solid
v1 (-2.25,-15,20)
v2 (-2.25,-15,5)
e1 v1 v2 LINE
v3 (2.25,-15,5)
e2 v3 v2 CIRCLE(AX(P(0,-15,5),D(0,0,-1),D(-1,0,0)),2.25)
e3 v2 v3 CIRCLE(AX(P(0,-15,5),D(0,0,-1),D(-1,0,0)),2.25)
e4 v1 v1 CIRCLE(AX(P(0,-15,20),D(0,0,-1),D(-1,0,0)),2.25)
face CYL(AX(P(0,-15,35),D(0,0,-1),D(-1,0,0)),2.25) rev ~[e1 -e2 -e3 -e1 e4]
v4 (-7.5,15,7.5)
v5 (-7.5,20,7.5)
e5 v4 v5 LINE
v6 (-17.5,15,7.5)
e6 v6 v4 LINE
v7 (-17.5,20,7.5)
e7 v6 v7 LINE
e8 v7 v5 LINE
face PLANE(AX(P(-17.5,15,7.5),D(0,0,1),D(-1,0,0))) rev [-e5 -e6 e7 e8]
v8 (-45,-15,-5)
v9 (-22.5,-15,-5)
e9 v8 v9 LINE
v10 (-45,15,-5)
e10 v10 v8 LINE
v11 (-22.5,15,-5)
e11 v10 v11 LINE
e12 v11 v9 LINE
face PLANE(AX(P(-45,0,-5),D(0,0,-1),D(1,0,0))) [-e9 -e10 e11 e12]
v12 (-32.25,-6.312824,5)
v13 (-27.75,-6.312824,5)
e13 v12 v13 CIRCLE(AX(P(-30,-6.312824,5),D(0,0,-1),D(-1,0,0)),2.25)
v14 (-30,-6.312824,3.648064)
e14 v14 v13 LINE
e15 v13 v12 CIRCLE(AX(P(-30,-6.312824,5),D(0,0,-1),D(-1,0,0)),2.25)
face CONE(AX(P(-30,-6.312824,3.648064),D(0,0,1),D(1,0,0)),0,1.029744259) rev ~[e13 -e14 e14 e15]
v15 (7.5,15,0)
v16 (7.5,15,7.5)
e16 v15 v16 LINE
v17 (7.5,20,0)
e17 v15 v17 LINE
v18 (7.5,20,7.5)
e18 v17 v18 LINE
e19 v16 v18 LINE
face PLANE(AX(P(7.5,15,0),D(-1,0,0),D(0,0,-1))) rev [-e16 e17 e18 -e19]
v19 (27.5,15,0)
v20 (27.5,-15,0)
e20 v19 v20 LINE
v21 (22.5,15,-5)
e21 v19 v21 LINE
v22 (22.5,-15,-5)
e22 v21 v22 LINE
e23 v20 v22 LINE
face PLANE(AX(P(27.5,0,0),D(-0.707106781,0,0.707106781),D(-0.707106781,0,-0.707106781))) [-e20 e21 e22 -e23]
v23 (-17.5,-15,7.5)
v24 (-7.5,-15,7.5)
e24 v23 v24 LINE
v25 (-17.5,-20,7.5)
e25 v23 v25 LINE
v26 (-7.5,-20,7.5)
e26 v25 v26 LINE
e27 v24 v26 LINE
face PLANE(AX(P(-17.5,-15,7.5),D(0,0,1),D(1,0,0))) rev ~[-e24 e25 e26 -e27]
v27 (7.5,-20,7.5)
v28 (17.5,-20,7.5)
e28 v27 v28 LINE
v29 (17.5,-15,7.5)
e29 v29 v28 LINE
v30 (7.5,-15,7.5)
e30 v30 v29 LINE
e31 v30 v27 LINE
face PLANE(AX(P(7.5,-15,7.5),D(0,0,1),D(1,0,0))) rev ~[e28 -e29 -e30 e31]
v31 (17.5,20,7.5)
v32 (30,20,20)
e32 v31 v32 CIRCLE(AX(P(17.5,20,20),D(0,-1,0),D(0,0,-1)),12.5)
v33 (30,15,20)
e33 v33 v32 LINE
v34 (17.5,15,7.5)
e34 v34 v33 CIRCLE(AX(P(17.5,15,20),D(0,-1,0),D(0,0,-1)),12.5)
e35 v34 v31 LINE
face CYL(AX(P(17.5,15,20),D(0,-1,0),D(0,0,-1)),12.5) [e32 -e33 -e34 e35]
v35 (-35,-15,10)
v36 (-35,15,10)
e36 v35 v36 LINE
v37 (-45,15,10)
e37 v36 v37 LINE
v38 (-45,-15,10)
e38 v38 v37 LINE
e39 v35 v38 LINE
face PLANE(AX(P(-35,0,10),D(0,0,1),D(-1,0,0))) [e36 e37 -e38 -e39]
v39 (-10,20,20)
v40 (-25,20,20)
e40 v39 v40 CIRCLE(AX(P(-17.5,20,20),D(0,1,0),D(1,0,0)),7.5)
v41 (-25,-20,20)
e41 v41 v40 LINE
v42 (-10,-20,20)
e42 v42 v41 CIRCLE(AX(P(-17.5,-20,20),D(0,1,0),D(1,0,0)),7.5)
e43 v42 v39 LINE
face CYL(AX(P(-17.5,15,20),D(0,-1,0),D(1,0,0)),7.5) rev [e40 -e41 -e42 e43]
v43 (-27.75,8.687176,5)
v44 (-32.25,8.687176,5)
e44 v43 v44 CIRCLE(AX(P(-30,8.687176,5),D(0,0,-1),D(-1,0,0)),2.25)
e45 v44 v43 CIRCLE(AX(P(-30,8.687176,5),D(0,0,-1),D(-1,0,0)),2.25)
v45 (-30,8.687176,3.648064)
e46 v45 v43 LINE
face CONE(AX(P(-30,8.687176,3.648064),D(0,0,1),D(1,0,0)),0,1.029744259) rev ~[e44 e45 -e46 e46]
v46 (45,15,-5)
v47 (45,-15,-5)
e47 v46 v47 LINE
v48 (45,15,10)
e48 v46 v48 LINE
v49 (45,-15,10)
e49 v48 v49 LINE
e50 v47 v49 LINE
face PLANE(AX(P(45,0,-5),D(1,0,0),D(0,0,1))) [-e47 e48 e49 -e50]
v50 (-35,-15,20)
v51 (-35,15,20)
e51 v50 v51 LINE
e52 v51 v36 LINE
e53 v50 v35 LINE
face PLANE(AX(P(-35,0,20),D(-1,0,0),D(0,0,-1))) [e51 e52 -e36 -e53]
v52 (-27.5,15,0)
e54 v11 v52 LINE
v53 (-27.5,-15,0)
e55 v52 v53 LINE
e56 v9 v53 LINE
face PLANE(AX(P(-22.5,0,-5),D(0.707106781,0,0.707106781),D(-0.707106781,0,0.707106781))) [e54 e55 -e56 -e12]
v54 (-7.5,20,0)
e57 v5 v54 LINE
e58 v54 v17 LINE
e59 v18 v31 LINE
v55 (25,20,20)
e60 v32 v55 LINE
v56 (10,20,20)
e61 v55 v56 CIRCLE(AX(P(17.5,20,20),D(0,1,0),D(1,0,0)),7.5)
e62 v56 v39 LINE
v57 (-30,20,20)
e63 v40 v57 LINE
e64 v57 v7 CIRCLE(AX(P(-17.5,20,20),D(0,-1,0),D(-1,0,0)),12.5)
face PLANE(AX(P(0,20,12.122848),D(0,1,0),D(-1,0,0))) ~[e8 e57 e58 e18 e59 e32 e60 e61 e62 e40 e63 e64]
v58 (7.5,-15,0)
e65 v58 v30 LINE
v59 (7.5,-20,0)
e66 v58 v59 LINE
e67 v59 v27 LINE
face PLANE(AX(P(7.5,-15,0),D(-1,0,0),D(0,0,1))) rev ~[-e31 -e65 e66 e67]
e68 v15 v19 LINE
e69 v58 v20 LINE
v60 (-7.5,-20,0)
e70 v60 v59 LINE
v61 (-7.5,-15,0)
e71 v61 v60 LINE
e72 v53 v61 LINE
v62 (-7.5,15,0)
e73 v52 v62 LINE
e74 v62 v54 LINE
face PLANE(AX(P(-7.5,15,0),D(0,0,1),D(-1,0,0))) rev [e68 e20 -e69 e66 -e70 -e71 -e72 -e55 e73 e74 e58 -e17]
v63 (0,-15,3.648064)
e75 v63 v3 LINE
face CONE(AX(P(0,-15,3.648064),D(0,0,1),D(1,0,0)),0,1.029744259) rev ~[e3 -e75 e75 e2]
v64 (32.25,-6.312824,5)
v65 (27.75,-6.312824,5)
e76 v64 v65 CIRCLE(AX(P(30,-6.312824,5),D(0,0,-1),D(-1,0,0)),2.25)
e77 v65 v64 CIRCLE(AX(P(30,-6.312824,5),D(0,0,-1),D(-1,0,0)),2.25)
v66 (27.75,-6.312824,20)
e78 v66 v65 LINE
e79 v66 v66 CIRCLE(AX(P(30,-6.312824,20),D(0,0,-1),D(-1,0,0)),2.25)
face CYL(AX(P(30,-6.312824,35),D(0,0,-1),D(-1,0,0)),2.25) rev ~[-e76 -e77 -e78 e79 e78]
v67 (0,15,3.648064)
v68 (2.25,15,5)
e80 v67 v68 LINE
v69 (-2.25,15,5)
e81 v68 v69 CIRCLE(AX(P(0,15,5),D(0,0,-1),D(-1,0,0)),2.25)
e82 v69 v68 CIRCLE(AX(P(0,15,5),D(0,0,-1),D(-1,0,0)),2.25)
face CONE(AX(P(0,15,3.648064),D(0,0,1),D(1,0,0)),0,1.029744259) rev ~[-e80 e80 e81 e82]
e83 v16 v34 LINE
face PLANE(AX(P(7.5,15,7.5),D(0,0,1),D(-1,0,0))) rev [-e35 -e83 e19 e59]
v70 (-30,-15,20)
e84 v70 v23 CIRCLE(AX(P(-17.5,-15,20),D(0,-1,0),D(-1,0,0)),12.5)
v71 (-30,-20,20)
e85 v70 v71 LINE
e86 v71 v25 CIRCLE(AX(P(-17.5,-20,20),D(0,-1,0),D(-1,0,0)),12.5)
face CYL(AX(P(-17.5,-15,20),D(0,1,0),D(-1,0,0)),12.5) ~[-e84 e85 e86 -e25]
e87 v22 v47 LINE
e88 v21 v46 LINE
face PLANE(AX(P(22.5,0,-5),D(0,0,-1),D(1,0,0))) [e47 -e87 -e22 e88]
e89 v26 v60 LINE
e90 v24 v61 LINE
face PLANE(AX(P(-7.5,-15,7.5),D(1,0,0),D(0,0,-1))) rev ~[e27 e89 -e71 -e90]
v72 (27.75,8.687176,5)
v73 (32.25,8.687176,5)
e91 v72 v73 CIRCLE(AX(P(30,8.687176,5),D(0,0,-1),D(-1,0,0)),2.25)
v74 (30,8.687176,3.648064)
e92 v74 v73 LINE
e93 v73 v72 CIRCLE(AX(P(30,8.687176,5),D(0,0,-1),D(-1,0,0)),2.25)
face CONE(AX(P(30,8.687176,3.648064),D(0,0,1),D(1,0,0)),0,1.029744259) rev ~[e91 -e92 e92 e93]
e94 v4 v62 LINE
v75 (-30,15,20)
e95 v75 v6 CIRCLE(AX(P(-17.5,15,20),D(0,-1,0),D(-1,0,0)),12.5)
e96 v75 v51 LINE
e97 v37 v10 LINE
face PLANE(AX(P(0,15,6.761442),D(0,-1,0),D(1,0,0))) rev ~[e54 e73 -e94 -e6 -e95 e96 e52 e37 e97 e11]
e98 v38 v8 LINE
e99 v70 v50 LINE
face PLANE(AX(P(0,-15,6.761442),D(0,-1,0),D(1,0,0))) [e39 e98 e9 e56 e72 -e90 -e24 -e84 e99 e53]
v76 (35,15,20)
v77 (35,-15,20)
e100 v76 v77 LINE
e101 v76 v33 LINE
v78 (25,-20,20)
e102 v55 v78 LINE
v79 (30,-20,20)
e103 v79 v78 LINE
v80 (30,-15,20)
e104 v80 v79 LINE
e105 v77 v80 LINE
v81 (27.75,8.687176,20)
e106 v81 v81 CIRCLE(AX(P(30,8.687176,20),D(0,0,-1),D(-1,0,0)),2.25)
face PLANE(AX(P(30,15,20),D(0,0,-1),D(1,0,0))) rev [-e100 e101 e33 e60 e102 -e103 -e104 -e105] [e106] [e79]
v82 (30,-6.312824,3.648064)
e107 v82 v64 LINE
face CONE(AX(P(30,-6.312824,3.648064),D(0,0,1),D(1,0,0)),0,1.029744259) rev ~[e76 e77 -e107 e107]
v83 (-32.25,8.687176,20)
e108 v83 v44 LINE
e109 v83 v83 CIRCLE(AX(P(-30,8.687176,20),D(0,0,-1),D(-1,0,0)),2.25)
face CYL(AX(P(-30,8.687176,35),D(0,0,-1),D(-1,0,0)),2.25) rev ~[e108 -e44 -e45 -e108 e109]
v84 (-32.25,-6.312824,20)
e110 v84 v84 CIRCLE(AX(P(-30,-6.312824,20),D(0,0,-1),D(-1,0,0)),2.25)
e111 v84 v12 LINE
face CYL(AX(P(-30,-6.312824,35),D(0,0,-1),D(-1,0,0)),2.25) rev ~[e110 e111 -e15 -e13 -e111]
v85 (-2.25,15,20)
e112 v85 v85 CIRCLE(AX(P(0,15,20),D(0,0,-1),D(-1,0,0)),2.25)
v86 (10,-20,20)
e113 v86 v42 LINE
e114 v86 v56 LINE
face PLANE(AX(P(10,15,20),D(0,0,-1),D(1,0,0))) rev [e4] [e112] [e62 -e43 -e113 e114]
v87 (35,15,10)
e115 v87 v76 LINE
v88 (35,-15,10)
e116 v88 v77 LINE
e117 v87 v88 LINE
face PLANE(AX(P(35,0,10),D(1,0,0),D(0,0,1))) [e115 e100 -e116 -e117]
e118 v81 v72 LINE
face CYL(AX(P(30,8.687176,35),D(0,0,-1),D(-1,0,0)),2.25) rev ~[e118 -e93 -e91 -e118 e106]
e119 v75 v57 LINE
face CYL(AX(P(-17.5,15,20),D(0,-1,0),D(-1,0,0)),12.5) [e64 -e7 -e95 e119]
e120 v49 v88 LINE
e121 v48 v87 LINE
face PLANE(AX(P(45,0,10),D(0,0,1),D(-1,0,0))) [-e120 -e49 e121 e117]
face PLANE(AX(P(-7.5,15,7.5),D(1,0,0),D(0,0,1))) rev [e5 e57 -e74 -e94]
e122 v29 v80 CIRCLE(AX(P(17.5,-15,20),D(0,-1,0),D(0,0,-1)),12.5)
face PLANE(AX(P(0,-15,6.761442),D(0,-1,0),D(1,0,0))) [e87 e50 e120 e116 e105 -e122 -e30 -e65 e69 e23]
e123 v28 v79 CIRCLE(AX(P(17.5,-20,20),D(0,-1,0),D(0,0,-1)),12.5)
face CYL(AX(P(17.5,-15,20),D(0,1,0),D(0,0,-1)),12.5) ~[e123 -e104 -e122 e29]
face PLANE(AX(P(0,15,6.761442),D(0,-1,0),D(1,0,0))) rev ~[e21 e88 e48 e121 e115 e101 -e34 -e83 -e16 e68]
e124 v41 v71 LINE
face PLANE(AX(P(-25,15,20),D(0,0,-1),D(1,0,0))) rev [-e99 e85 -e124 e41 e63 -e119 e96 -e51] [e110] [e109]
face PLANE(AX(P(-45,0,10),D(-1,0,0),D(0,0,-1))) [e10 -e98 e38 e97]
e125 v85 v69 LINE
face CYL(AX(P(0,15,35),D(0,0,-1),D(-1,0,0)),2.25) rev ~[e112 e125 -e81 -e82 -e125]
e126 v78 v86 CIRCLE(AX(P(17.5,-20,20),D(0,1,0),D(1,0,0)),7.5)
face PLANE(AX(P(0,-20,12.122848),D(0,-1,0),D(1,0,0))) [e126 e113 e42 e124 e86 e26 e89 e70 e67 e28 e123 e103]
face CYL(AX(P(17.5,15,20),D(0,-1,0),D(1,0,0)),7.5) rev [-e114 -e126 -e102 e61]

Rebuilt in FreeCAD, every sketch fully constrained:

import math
import FreeCAD as App
import Part
import Sketcher

doc = App.newDocument("Part")
body = doc.addObject("PartDesign::Body", "Body")

# Sketch on XZ plane
sketch1 = body.newObject("Sketcher::SketchObject", "Sketch")
sketch1.AttachmentSupport = (doc.getObject("XZ_Plane"), [""])
sketch1.MapMode = "FlatFace"
sketch1.addGeometry(Part.LineSegment(App.Vector(-45, 10, 0), App.Vector(-45, -5, 0)), False)
sketch1.addGeometry(Part.LineSegment(App.Vector(-45, -5, 0), App.Vector(-22, -5, 0)), False)
sketch1.addGeometry(Part.LineSegment(App.Vector(-22, -5, 0), App.Vector(-28, 0, 0)), False)
sketch1.addGeometry(Part.LineSegment(App.Vector(-28, 0, 0), App.Vector(28, 0, 0)), False)
sketch1.addGeometry(Part.LineSegment(App.Vector(28, 0, 0), App.Vector(22, -5, 0)), False)
sketch1.addGeometry(Part.LineSegment(App.Vector(22, -5, 0), App.Vector(45, -5, 0)), False)
sketch1.addGeometry(Part.LineSegment(App.Vector(45, -5, 0), App.Vector(45, 10, 0)), False)
sketch1.addGeometry(Part.LineSegment(App.Vector(45, 10, 0), App.Vector(35, 10, 0)), False)
sketch1.addGeometry(Part.LineSegment(App.Vector(35, 10, 0), App.Vector(35, 20, 0)), False)
sketch1.addGeometry(Part.LineSegment(App.Vector(35, 20, 0), App.Vector(25, 20, 0)), False)
sketch1.addGeometry(Part.ArcOfCircle(Part.Circle(App.Vector(18, 20, 0), App.Vector(0, 0, 1), 8), math.radians(180), math.radians(360)), False)
sketch1.addGeometry(Part.LineSegment(App.Vector(10, 20, 0), App.Vector(-10, 20, 0)), False)
sketch1.addGeometry(Part.ArcOfCircle(Part.Circle(App.Vector(-18, 20, 0), App.Vector(0, 0, 1), 8), math.radians(180), math.radians(360)), False)
sketch1.addGeometry(Part.LineSegment(App.Vector(-25, 20, 0), App.Vector(-35, 20, 0)), False)
sketch1.addGeometry(Part.LineSegment(App.Vector(-35, 20, 0), App.Vector(-35, 10, 0)), False)
sketch1.addGeometry(Part.LineSegment(App.Vector(-35, 10, 0), App.Vector(-45, 10, 0)), False)
sketch1.addConstraint(Sketcher.Constraint("Coincident", 0, 2, 1, 1))
sketch1.addConstraint(Sketcher.Constraint("Coincident", 1, 2, 2, 1))
sketch1.addConstraint(Sketcher.Constraint("Coincident", 2, 2, 3, 1))
sketch1.addConstraint(Sketcher.Constraint("Coincident", 3, 2, 4, 1))
sketch1.addConstraint(Sketcher.Constraint("Coincident", 4, 2, 5, 1))
sketch1.addConstraint(Sketcher.Constraint("Coincident", 5, 2, 6, 1))
sketch1.addConstraint(Sketcher.Constraint("Coincident", 6, 2, 7, 1))
sketch1.addConstraint(Sketcher.Constraint("Coincident", 7, 2, 8, 1))
sketch1.addConstraint(Sketcher.Constraint("Coincident", 8, 2, 9, 1))
sketch1.addConstraint(Sketcher.Constraint("Coincident", 9, 2, 10, 2))
sketch1.addConstraint(Sketcher.Constraint("Coincident", 10, 1, 11, 1))
sketch1.addConstraint(Sketcher.Constraint("Coincident", 11, 2, 12, 2))
sketch1.addConstraint(Sketcher.Constraint("Coincident", 12, 1, 13, 1))
sketch1.addConstraint(Sketcher.Constraint("Coincident", 13, 2, 14, 1))
sketch1.addConstraint(Sketcher.Constraint("Coincident", 14, 2, 15, 1))
sketch1.addConstraint(Sketcher.Constraint("Coincident", 15, 2, 0, 1))
sketch1.addConstraint(Sketcher.Constraint("Vertical", 0))
sketch1.addConstraint(Sketcher.Constraint("Horizontal", 1))
sketch1.addConstraint(Sketcher.Constraint("Horizontal", 3))
sketch1.addConstraint(Sketcher.Constraint("Horizontal", 5))
sketch1.addConstraint(Sketcher.Constraint("Vertical", 6))
sketch1.addConstraint(Sketcher.Constraint("Horizontal", 7))
sketch1.addConstraint(Sketcher.Constraint("Vertical", 8))
sketch1.addConstraint(Sketcher.Constraint("Horizontal", 9))
sketch1.addConstraint(Sketcher.Constraint("Horizontal", 11))
sketch1.addConstraint(Sketcher.Constraint("Horizontal", 13))
sketch1.addConstraint(Sketcher.Constraint("Vertical", 14))
sketch1.addConstraint(Sketcher.Constraint("Horizontal", 15))
sketch1.addConstraint(Sketcher.Constraint("Equal", 10, 12))
sketch1.addConstraint(Sketcher.Constraint("Symmetric", 2, 2, 3, 2, -1, 1))
sketch1.addConstraint(Sketcher.Constraint("Symmetric", 10, 3, 12, 3, -2))
sketch1.addConstraint(Sketcher.Constraint("Symmetric", 1, 2, 4, 2, -2))
sketch1.addConstraint(Sketcher.Constraint("Symmetric", 8, 2, 13, 2, -2))
sketch1.addConstraint(Sketcher.Constraint("Symmetric", 6, 2, 15, 2, -2))
sketch1.addConstraint(Sketcher.Constraint("Perpendicular", 2, 4))
sketch1.addConstraint(Sketcher.Constraint("Horizontal", 12, 3, 8, 2))
sketch1.addConstraint(Sketcher.Constraint("Horizontal", 9, 2, 10, 1))
sketch1.addConstraint(Sketcher.Constraint("Equal", 7, 9))
sketch1.addConstraint(Sketcher.Constraint("Equal", 15, 8))
sketch1.addConstraint(Sketcher.Constraint("Radius", 10, 7.5))
sketch1.addConstraint(Sketcher.Constraint("DistanceX", 3, 1, 3, 2, 55.0))
sketch1.addConstraint(Sketcher.Constraint("DistanceX", 7, 2, 7, 1, 10.0))
sketch1.addConstraint(Sketcher.Constraint("DistanceX", 11, 2, 11, 1, 20.0))
sketch1.addConstraint(Sketcher.Constraint("DistanceY", 0, 2, 0, 1, 15.0))
sketch1.addConstraint(Sketcher.Constraint("DistanceX", 1, 1, 1, 2, 22.5))
pad1 = body.newObject("PartDesign::Pad", "Pad")
pad1.Profile = sketch1
pad1.Length = 30
pad1.Midplane = True

# Sketch on XZ plane
sketch2 = body.newObject("Sketcher::SketchObject", "Sketch001")
sketch2.AttachmentSupport = (doc.getObject("XZ_Plane"), [""])
sketch2.MapMode = "FlatFace"
sketch2.AttachmentOffset = App.Placement(App.Vector(0, 0, 15), App.Rotation())
sketch2.addGeometry(Part.LineSegment(App.Vector(-25, 20, 0), App.Vector(-30, 20, 0)), False)
sketch2.addGeometry(Part.ArcOfCircle(Part.Circle(App.Vector(-18, 20, 0), App.Vector(0, 0, 1), 12), math.radians(180), math.radians(270)), False)
sketch2.addGeometry(Part.LineSegment(App.Vector(-18, 8, 0), App.Vector(-8, 8, 0)), False)
sketch2.addGeometry(Part.LineSegment(App.Vector(-8, 8, 0), App.Vector(-8, 0, 0)), False)
sketch2.addGeometry(Part.LineSegment(App.Vector(-8, 0, 0), App.Vector(8, 0, 0)), False)
sketch2.addGeometry(Part.LineSegment(App.Vector(8, 0, 0), App.Vector(8, 8, 0)), False)
sketch2.addGeometry(Part.LineSegment(App.Vector(8, 8, 0), App.Vector(18, 8, 0)), False)
sketch2.addGeometry(Part.ArcOfCircle(Part.Circle(App.Vector(18, 20, 0), App.Vector(0, 0, 1), 12), math.radians(-90), math.radians(0)), False)
sketch2.addGeometry(Part.LineSegment(App.Vector(30, 20, 0), App.Vector(25, 20, 0)), False)
sketch2.addGeometry(Part.ArcOfCircle(Part.Circle(App.Vector(18, 20, 0), App.Vector(0, 0, 1), 8), math.radians(180), math.radians(360)), False)
sketch2.addGeometry(Part.LineSegment(App.Vector(10, 20, 0), App.Vector(-10, 20, 0)), False)
sketch2.addGeometry(Part.ArcOfCircle(Part.Circle(App.Vector(-18, 20, 0), App.Vector(0, 0, 1), 8), math.radians(180), math.radians(360)), False)
sketch2.addConstraint(Sketcher.Constraint("Coincident", 0, 2, 1, 1))
sketch2.addConstraint(Sketcher.Constraint("Tangent", 1, 2, 2, 1))
sketch2.addConstraint(Sketcher.Constraint("Coincident", 2, 2, 3, 1))
sketch2.addConstraint(Sketcher.Constraint("Coincident", 3, 2, 4, 1))
sketch2.addConstraint(Sketcher.Constraint("Coincident", 4, 2, 5, 1))
sketch2.addConstraint(Sketcher.Constraint("Coincident", 5, 2, 6, 1))
sketch2.addConstraint(Sketcher.Constraint("Tangent", 6, 2, 7, 1))
sketch2.addConstraint(Sketcher.Constraint("Coincident", 7, 2, 8, 1))
sketch2.addConstraint(Sketcher.Constraint("Coincident", 8, 2, 9, 2))
sketch2.addConstraint(Sketcher.Constraint("Coincident", 9, 1, 10, 1))
sketch2.addConstraint(Sketcher.Constraint("Coincident", 10, 2, 11, 2))
sketch2.addConstraint(Sketcher.Constraint("Coincident", 11, 1, 0, 1))
sketch2.addConstraint(Sketcher.Constraint("Horizontal", 0))
sketch2.addConstraint(Sketcher.Constraint("Horizontal", 2))
sketch2.addConstraint(Sketcher.Constraint("Vertical", 3))
sketch2.addConstraint(Sketcher.Constraint("Horizontal", 4))
sketch2.addConstraint(Sketcher.Constraint("Vertical", 5))
sketch2.addConstraint(Sketcher.Constraint("Horizontal", 6))
sketch2.addConstraint(Sketcher.Constraint("Horizontal", 8))
sketch2.addConstraint(Sketcher.Constraint("Horizontal", 10))
sketch2.addConstraint(Sketcher.Constraint("Coincident", 9, 3, 7, 3))
sketch2.addConstraint(Sketcher.Constraint("Coincident", 11, 3, 1, 3))
sketch2.addConstraint(Sketcher.Constraint("Equal", 1, 7))
sketch2.addConstraint(Sketcher.Constraint("Equal", 9, 11))
sketch2.addConstraint(Sketcher.Constraint("Symmetric", 3, 2, 4, 2, -1, 1))
sketch2.addConstraint(Sketcher.Constraint("Symmetric", 1, 3, 7, 3, -2))
sketch2.addConstraint(Sketcher.Constraint("Horizontal", 11, 3, 0, 2))
sketch2.addConstraint(Sketcher.Constraint("Horizontal", 0, 2, 7, 2))
sketch2.addConstraint(Sketcher.Constraint("Horizontal", 8, 2, 9, 1))
sketch2.addConstraint(Sketcher.Constraint("Radius", 1, 12.5))
sketch2.addConstraint(Sketcher.Constraint("Radius", 9, 7.5))
sketch2.addConstraint(Sketcher.Constraint("DistanceX", 2, 1, 2, 2, 10.0))
sketch2.addConstraint(Sketcher.Constraint("DistanceX", 4, 1, 4, 2, 15.0))
sketch2.addConstraint(Sketcher.Constraint("DistanceY", 3, 2, 3, 1, 7.5))
pad2 = body.newObject("PartDesign::Pad", "Pad001")
pad2.Profile = sketch2
pad2.Length = 5
body2 = doc.addObject("PartDesign::Body", "Body001")
doc.recompute()

body2.BaseFeature = body
doc.recompute()

mirroring = doc.addObject("Part::Mirroring", "Mirroring")
mirroring.Source = body
mirroring.Base = App.Vector(0, 0, 0)
mirroring.Normal = App.Vector(0, -1, 0)
body3 = doc.addObject("PartDesign::Body", "Body002")
body3.BaseFeature = mirroring
boolean = body2.newObject("PartDesign::Boolean", "Boolean")
boolean.Type = "Fuse"
boolean.addObjects([body3])
doc.recompute()

# Sketch on XY plane
sketch3 = body2.newObject("Sketcher::SketchObject", "Sketch002")
sketch3.AttachmentSupport = (doc.getObject("XY_Plane001"), [""])
sketch3.MapMode = "FlatFace"
sketch3.AttachmentOffset = App.Placement(App.Vector(0, 0, 20), App.Rotation())
sketch3.addGeometry(Part.Circle(App.Vector(-30, 8.7, 0), App.Vector(0, 0, 1), 2.2), False)
sketch3.addGeometry(Part.Circle(App.Vector(-30, -6.3, 0), App.Vector(0, 0, 1), 2.2), False)
sketch3.addGeometry(Part.Circle(App.Vector(0, 15, 0), App.Vector(0, 0, 1), 2.2), False)
sketch3.addGeometry(Part.Circle(App.Vector(0, -15, 0), App.Vector(0, 0, 1), 2.2), False)
sketch3.addGeometry(Part.Circle(App.Vector(30, 8.7, 0), App.Vector(0, 0, 1), 2.2), False)
sketch3.addGeometry(Part.Circle(App.Vector(30, -6.3, 0), App.Vector(0, 0, 1), 2.2), False)
sketch3.addConstraint(Sketcher.Constraint("Equal", 0, 1))
sketch3.addConstraint(Sketcher.Constraint("Equal", 1, 2))
sketch3.addConstraint(Sketcher.Constraint("Equal", 2, 3))
sketch3.addConstraint(Sketcher.Constraint("Equal", 3, 4))
sketch3.addConstraint(Sketcher.Constraint("Equal", 4, 5))
sketch3.addConstraint(Sketcher.Constraint("Symmetric", 2, 3, 3, 3, -1, 1))
sketch3.addConstraint(Sketcher.Constraint("Symmetric", 0, 3, 4, 3, -2))
sketch3.addConstraint(Sketcher.Constraint("Symmetric", 1, 3, 5, 3, -2))
sketch3.addConstraint(Sketcher.Constraint("PointOnObject", 2, 3, -2))
sketch3.addConstraint(Sketcher.Constraint("Vertical", 0, 3, 1, 3))
sketch3.addConstraint(Sketcher.Constraint("Diameter", 0, 4.5))
sketch3.addConstraint(Sketcher.Constraint("DistanceX", 0, 3, -1, 1, 30.0))
sketch3.addConstraint(Sketcher.Constraint("DistanceY", -1, 1, 2, 3, 15.0))
sketch3.addConstraint(Sketcher.Constraint("DistanceY", 1, 3, 0, 3, 15.0))
sketch3.addConstraint(Sketcher.Constraint("DistanceY", -1, 1, 0, 3, 8.687176))
doc.recompute()
hole = body2.newObject("PartDesign::Hole", "Hole")
hole.Profile = sketch3
hole.ThreadType = "None"
hole.Diameter = 4.5
hole.DepthType = "Dimension"
hole.Depth = 15
hole.DrillPoint = "Angled"
hole.DrillPointAngle = 118
mirroring.Visibility = False

doc.recompute()
